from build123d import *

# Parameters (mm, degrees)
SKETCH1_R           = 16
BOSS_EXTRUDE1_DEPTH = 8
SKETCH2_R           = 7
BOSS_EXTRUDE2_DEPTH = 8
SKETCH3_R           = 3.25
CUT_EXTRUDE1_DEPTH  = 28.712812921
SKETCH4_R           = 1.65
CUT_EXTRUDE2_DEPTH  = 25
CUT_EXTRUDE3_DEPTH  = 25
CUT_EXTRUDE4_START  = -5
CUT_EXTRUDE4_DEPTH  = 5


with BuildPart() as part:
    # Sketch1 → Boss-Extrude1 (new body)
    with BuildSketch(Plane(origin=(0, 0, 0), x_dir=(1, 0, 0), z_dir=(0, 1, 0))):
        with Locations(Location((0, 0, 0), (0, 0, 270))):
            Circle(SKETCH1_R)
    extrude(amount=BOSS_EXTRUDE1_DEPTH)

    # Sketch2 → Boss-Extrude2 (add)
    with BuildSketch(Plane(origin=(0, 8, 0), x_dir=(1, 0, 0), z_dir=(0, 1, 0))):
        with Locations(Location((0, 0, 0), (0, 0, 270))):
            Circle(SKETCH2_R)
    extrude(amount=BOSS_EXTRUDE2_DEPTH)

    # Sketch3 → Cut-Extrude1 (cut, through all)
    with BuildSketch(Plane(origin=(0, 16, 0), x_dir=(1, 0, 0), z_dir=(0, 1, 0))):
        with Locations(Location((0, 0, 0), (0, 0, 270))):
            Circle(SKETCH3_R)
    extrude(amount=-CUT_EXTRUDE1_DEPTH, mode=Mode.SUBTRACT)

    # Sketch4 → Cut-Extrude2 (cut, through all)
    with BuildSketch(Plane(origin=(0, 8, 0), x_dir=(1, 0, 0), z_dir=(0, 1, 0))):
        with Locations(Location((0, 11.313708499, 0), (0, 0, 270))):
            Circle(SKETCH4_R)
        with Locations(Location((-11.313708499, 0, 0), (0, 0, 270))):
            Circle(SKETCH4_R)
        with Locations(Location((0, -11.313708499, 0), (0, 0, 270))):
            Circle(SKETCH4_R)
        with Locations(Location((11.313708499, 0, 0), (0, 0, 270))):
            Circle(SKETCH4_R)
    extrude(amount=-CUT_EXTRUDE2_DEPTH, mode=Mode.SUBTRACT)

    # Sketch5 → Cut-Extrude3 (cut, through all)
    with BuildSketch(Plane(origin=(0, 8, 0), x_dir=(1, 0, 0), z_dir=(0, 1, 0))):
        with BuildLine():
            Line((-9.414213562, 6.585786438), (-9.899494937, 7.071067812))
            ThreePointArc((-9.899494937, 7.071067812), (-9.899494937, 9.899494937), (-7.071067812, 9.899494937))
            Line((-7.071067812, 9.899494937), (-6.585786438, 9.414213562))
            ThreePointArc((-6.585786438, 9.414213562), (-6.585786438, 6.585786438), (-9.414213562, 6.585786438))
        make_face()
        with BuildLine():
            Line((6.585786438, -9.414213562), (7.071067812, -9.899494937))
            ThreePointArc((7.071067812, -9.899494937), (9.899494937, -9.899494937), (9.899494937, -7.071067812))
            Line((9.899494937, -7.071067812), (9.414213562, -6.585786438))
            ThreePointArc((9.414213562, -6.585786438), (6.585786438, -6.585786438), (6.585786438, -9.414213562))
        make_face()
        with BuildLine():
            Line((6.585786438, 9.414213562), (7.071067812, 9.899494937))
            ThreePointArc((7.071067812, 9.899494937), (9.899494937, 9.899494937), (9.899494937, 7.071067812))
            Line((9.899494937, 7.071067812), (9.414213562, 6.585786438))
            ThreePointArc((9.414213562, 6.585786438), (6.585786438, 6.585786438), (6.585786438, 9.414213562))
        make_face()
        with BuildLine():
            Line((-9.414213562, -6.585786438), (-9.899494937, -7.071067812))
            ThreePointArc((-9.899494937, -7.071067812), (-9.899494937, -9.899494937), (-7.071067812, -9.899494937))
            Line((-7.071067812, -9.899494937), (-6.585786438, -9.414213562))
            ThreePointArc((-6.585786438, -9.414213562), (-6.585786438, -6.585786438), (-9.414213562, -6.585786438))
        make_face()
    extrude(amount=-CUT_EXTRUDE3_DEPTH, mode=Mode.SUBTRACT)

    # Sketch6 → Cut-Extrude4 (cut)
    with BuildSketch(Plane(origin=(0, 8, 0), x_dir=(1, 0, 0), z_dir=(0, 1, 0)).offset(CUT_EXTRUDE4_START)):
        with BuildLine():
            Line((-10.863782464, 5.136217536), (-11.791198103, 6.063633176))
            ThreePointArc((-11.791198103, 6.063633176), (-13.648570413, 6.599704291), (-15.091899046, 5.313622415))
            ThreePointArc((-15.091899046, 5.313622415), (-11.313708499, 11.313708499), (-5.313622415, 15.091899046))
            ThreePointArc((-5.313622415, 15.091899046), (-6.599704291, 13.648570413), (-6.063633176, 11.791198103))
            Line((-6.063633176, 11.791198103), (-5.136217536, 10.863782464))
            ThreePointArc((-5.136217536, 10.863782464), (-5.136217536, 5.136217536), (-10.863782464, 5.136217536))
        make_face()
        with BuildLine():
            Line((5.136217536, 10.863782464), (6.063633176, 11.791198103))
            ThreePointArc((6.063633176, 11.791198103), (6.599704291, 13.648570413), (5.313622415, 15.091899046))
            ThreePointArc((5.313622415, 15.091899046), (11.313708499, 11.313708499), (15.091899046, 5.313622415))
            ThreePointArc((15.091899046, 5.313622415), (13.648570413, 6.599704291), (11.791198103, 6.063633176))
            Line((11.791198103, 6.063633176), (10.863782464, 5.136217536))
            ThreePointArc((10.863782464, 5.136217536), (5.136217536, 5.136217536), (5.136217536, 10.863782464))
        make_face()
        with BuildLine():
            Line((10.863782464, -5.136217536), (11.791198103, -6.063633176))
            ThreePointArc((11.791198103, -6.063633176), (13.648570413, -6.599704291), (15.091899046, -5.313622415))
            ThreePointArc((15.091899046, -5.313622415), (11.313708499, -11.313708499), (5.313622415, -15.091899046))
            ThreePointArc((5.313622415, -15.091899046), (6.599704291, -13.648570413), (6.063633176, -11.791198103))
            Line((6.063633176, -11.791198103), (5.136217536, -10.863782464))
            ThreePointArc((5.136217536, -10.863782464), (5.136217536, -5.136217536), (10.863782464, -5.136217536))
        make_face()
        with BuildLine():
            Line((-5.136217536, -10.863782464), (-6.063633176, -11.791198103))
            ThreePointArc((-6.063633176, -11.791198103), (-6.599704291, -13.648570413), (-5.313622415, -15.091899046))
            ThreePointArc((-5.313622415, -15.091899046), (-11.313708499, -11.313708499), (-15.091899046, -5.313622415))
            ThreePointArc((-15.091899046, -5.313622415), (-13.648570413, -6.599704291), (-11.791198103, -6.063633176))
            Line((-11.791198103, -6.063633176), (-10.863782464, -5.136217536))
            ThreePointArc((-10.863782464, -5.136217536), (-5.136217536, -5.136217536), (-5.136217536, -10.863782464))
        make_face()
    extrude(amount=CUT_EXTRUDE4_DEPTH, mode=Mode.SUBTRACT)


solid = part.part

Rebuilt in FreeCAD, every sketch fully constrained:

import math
import FreeCAD as App
import Part
import Sketcher
Q = App.Units.Quantity

doc = App.newDocument("Part")
body = doc.addObject("PartDesign::Body", "Body")

# Sketch on XZ plane
sketch1 = doc.addObject("Sketcher::SketchObject", "Sketch")
body.addObject(sketch1)
sketch1.AttachmentSupport = (doc.XZ_Plane, [""])
sketch1.MapMode = "FlatFace"
sketch1.addGeometry(Part.Circle(App.Vector(0, 0, 0), App.Vector(0, 0, 1), 16), False)
sketch1.addConstraint([
    Sketcher.Constraint("Coincident", 0, 3, -1, 1),
    Sketcher.Constraint("Diameter", 0, Q("32 mm")),
])
pad1 = doc.addObject("PartDesign::Pad", "Pad")
body.addObject(pad1)
pad1.Profile = sketch1
pad1.Length = 8
pad1.Reversed = True

# Sketch on XZ plane
sketch2 = doc.addObject("Sketcher::SketchObject", "Sketch001")
body.addObject(sketch2)
sketch2.AttachmentSupport = (doc.XZ_Plane, [""])
sketch2.MapMode = "FlatFace"
sketch2.AttachmentOffset = App.Placement(App.Vector(0, 0, -8), App.Rotation())
sketch2.addGeometry(Part.Circle(App.Vector(0, 0, 0), App.Vector(0, 0, 1), 7), False)
sketch2.addConstraint([
    Sketcher.Constraint("Coincident", 0, 3, -1, 1),
    Sketcher.Constraint("Diameter", 0, Q("14 mm")),
])
pad2 = doc.addObject("PartDesign::Pad", "Pad001")
body.addObject(pad2)
pad2.Profile = sketch2
pad2.Length = 8
pad2.Reversed = True

# Sketch on XZ plane
sketch3 = doc.addObject("Sketcher::SketchObject", "Sketch002")
body.addObject(sketch3)
sketch3.AttachmentSupport = (doc.XZ_Plane, [""])
sketch3.MapMode = "FlatFace"
sketch3.AttachmentOffset = App.Placement(App.Vector(0, 0, -16), App.Rotation())
sketch3.addGeometry(Part.Circle(App.Vector(0, 0, 0), App.Vector(0, 0, 1), 3.2), False)
sketch3.addConstraint([
    Sketcher.Constraint("Coincident", 0, 3, -1, 1),
    Sketcher.Constraint("Diameter", 0, Q("6.5 mm")),
])
pocket1 = doc.addObject("PartDesign::Pocket", "Pocket")
body.addObject(pocket1)
pocket1.Profile = sketch3
pocket1.Type = "ThroughAll"
pocket1.Reversed = True

# Sketch on XZ plane
sketch4 = doc.addObject("Sketcher::SketchObject", "Sketch003")
body.addObject(sketch4)
sketch4.AttachmentSupport = (doc.XZ_Plane, [""])
sketch4.MapMode = "FlatFace"
sketch4.AttachmentOffset = App.Placement(App.Vector(0, 0, -8), App.Rotation())
sketch4.addGeometry([
    Part.Circle(App.Vector(0, -11.3, 0), App.Vector(0, 0, 1), 1.6),
    Part.Circle(App.Vector(-11.3, 0, 0), App.Vector(0, 0, 1), 1.6),
    Part.Circle(App.Vector(0, 11.3, 0), App.Vector(0, 0, 1), 1.6),
    Part.Circle(App.Vector(11.3, 0, 0), App.Vector(0, 0, 1), 1.6),
], False)
sketch4.addConstraint([
    Sketcher.Constraint("Equal", 0, 1),
    Sketcher.Constraint("Equal", 1, 2),
    Sketcher.Constraint("Equal", 2, 3),
    Sketcher.Constraint("Symmetric", 0, 3, 2, 3, -1, 1),
    Sketcher.Constraint("Symmetric", 1, 3, 3, 3, -1, 1),
    Sketcher.Constraint("PointOnObject", 0, 3, -2),
    Sketcher.Constraint("PointOnObject", 1, 3, -1),
    Sketcher.Constraint("Diameter", 0, Q("3.3 mm")),
    Sketcher.Constraint("DistanceY", 0, 3, -1, 1, Q("11.313708 mm")),
    Sketcher.Constraint("DistanceX", 1, 3, -1, 1, Q("11.313708 mm")),
])
pocket2 = doc.addObject("PartDesign::Pocket", "Pocket001")
body.addObject(pocket2)
pocket2.Profile = sketch4
pocket2.Type = "ThroughAll"
pocket2.Reversed = True

# Sketch on XZ plane
sketch5 = doc.addObject("Sketcher::SketchObject", "Sketch004")
body.addObject(sketch5)
sketch5.AttachmentSupport = (doc.XZ_Plane, [""])
sketch5.MapMode = "FlatFace"
sketch5.AttachmentOffset = App.Placement(App.Vector(0, 0, -8), App.Rotation())
sketch5.addGeometry([
    Part.LineSegment(App.Vector(-9.9, -7.1, 0), App.Vector(-9.4, -6.6, 0)),  # 0
    Part.ArcOfCircle(Part.Circle(App.Vector(-8, -8, 0), App.Vector(0, 0, 1), 2), math.radians(-45), math.radians(135)),  # 1
    Part.LineSegment(App.Vector(-6.6, -9.4, 0), App.Vector(-7.1, -9.9, 0)),  # 2
    Part.ArcOfCircle(Part.Circle(App.Vector(-8.5, -8.5, 0), App.Vector(0, 0, 1), 2), math.radians(135), math.radians(315)),  # 3
    Part.LineSegment(App.Vector(6.6, 9.4, 0), App.Vector(7.1, 9.9, 0)),  # 4
    Part.ArcOfCircle(Part.Circle(App.Vector(8.5, 8.5, 0), App.Vector(0, 0, 1), 2), math.radians(-45), math.radians(135)),  # 5
    Part.LineSegment(App.Vector(9.9, 7.1, 0), App.Vector(9.4, 6.6, 0)),  # 6
    Part.ArcOfCircle(Part.Circle(App.Vector(8, 8, 0), App.Vector(0, 0, 1), 2), math.radians(135), math.radians(315)),  # 7
    Part.LineSegment(App.Vector(7.1, -9.9, 0), App.Vector(6.6, -9.4, 0)),  # 8
    Part.ArcOfCircle(Part.Circle(App.Vector(8, -8, 0), App.Vector(0, 0, 1), 2), math.radians(45), math.radians(225)),  # 9
    Part.LineSegment(App.Vector(9.4, -6.6, 0), App.Vector(9.9, -7.1, 0)),  # 10
    Part.ArcOfCircle(Part.Circle(App.Vector(8.5, -8.5, 0), App.Vector(0, 0, 1), 2), math.radians(-135), math.radians(45)),  # 11
    Part.LineSegment(App.Vector(-9.4, 6.6, 0), App.Vector(-9.9, 7.1, 0)),  # 12
    Part.ArcOfCircle(Part.Circle(App.Vector(-8.5, 8.5, 0), App.Vector(0, 0, 1), 2), math.radians(45), math.radians(225)),  # 13
    Part.LineSegment(App.Vector(-7.1, 9.9, 0), App.Vector(-6.6, 9.4, 0)),  # 14
    Part.ArcOfCircle(Part.Circle(App.Vector(-8, 8, 0), App.Vector(0, 0, 1), 2), math.radians(-135), math.radians(45)),  # 15
], False)
sketch5.addConstraint([
    Sketcher.Constraint("Tangent", 0, 2, 1, 2),
    Sketcher.Constraint("Tangent", 1, 1, 2, 1),
    Sketcher.Constraint("Tangent", 2, 2, 3, 2),
    Sketcher.Constraint("Tangent", 3, 1, 0, 1),
    Sketcher.Constraint("Tangent", 4, 2, 5, 2),
    Sketcher.Constraint("Tangent", 5, 1, 6, 1),
    Sketcher.Constraint("Tangent", 6, 2, 7, 2),
    Sketcher.Constraint("Tangent", 7, 1, 4, 1),
    Sketcher.Constraint("Tangent", 8, 2, 9, 2),
    Sketcher.Constraint("Tangent", 9, 1, 10, 1),
    Sketcher.Constraint("Tangent", 10, 2, 11, 2),
    Sketcher.Constraint("Tangent", 11, 1, 8, 1),
    Sketcher.Constraint("Tangent", 12, 2, 13, 2),
    Sketcher.Constraint("Tangent", 13, 1, 14, 1),
    Sketcher.Constraint("Tangent", 14, 2, 15, 2),
    Sketcher.Constraint("Tangent", 15, 1, 12, 1),
    Sketcher.Constraint("Equal", 1, 3),
    Sketcher.Constraint("Equal", 3, 5),
    Sketcher.Constraint("Equal", 5, 7),
    Sketcher.Constraint("Equal", 7, 9),
    Sketcher.Constraint("Equal", 9, 11),
    Sketcher.Constraint("Equal", 11, 13),
    Sketcher.Constraint("Equal", 13, 15),
    Sketcher.Constraint("Symmetric", 3, 3, 5, 3, -1, 1),
    Sketcher.Constraint("Symmetric", 1, 3, 7, 3, -1, 1),
    Sketcher.Constraint("Symmetric", 11, 3, 13, 3, -1, 1),
    Sketcher.Constraint("Symmetric", 9, 3, 15, 3, -1, 1),
    Sketcher.Constraint("Symmetric", 1, 3, 9, 3, -2),
    Sketcher.Constraint("Symmetric", 3, 3, 11, 3, -2),
    Sketcher.Constraint("Perpendicular", 6, 8),
    Sketcher.Constraint("Radius", 1, Q("2 mm")),
    Sketcher.Constraint("DistanceX", 1, 3, -1, 1, Q("8 mm")),
    Sketcher.Constraint("DistanceY", 1, 3, -1, 1, Q("8 mm")),
    Sketcher.Constraint("Distance", 0, Q("0.686292 mm")),
])
pocket3 = doc.addObject("PartDesign::Pocket", "Pocket002")
body.addObject(pocket3)
pocket3.Profile = sketch5
pocket3.Type = "ThroughAll"
pocket3.Reversed = True

# Sketch on XZ plane
sketch6 = doc.addObject("Sketcher::SketchObject", "Sketch005")
body.addObject(sketch6)
sketch6.AttachmentSupport = (doc.XZ_Plane, [""])
sketch6.MapMode = "FlatFace"
sketch6.AttachmentOffset = App.Placement(App.Vector(0, 0, -3), App.Rotation())
sketch6.addGeometry([
    Part.LineSegment(App.Vector(-11.8, -6.1, 0), App.Vector(-10.9, -5.1, 0)),  # 0
    Part.ArcOfCircle(Part.Circle(App.Vector(-8, -8, 0), App.Vector(0, 0, 1), 4), math.radians(-45), math.radians(135)),  # 1
    Part.LineSegment(App.Vector(-5.1, -10.9, 0), App.Vector(-6.1, -11.8, 0)),  # 2
    Part.ArcOfCircle(Part.Circle(App.Vector(-4.6, -13.2, 0), App.Vector(0, 0, 1), 2), math.radians(135), math.radians(251)),  # 3
    Part.ArcOfCircle(Part.Circle(App.Vector(0, 0, 0), App.Vector(0, 0, 1), 16), math.radians(-161), math.radians(-109)),  # 4
    Part.ArcOfCircle(Part.Circle(App.Vector(-13.2, -4.6, 0), App.Vector(0, 0, 1), 2), math.radians(-161), math.radians(-45)),  # 5
    Part.LineSegment(App.Vector(6.1, -11.8, 0), App.Vector(5.1, -10.9, 0)),  # 6
    Part.ArcOfCircle(Part.Circle(App.Vector(8, -8, 0), App.Vector(0, 0, 1), 4), math.radians(45), math.radians(225)),  # 7
    Part.LineSegment(App.Vector(10.9, -5.1, 0), App.Vector(11.8, -6.1, 0)),  # 8
    Part.ArcOfCircle(Part.Circle(App.Vector(13.2, -4.6, 0), App.Vector(0, 0, 1), 2), math.radians(-135), math.radians(-19)),  # 9
    Part.ArcOfCircle(Part.Circle(App.Vector(0, 0, 0), App.Vector(0, 0, 1), 16), math.radians(-71), math.radians(-19)),  # 10
    Part.ArcOfCircle(Part.Circle(App.Vector(4.6, -13.2, 0), App.Vector(0, 0, 1), 2), math.radians(-71), math.radians(45)),  # 11
    Part.LineSegment(App.Vector(11.8, 6.1, 0), App.Vector(10.9, 5.1, 0)),  # 12
    Part.ArcOfCircle(Part.Circle(App.Vector(8, 8, 0), App.Vector(0, 0, 1), 4), math.radians(135), math.radians(315)),  # 13
    Part.LineSegment(App.Vector(5.1, 10.9, 0), App.Vector(6.1, 11.8, 0)),  # 14
    Part.ArcOfCircle(Part.Circle(App.Vector(4.6, 13.2, 0), App.Vector(0, 0, 1), 2), math.radians(-45), math.radians(71)),  # 15
    Part.ArcOfCircle(Part.Circle(App.Vector(0, 0, 0), App.Vector(0, 0, 1), 16), math.radians(19), math.radians(71)),  # 16
    Part.ArcOfCircle(Part.Circle(App.Vector(13.2, 4.6, 0), App.Vector(0, 0, 1), 2), math.radians(19), math.radians(135)),  # 17
    Part.LineSegment(App.Vector(-6.1, 11.8, 0), App.Vector(-5.1, 10.9, 0)),  # 18
    Part.ArcOfCircle(Part.Circle(App.Vector(-8, 8, 0), App.Vector(0, 0, 1), 4), math.radians(-135), math.radians(45)),  # 19
    Part.LineSegment(App.Vector(-10.9, 5.1, 0), App.Vector(-11.8, 6.1, 0)),  # 20
    Part.ArcOfCircle(Part.Circle(App.Vector(-13.2, 4.6, 0), App.Vector(0, 0, 1), 2), math.radians(45), math.radians(161)),  # 21
    Part.ArcOfCircle(Part.Circle(App.Vector(0, 0, 0), App.Vector(0, 0, 1), 16), math.radians(109), math.radians(161)),  # 22
    Part.ArcOfCircle(Part.Circle(App.Vector(-4.6, 13.2, 0), App.Vector(0, 0, 1), 2), math.radians(109), math.radians(225)),  # 23
], False)
sketch6.addConstraint([
    Sketcher.Constraint("Tangent", 0, 2, 1, 2),
    Sketcher.Constraint("Tangent", 1, 1, 2, 1),
    Sketcher.Constraint("Tangent", 2, 2, 3, 1),
    Sketcher.Constraint("Tangent", 3, 2, 4, 2),
    Sketcher.Constraint("Tangent", 4, 1, 5, 1),
    Sketcher.Constraint("Tangent", 5, 2, 0, 1),
    Sketcher.Constraint("Tangent", 6, 2, 7, 2),
    Sketcher.Constraint("Tangent", 7, 1, 8, 1),
    Sketcher.Constraint("Tangent", 8, 2, 9, 1),
    Sketcher.Constraint("Tangent", 9, 2, 10, 2),
    Sketcher.Constraint("Tangent", 10, 1, 11, 1),
    Sketcher.Constraint("Tangent", 11, 2, 6, 1),
    Sketcher.Constraint("Tangent", 12, 2, 13, 2),
    Sketcher.Constraint("Tangent", 13, 1, 14, 1),
    Sketcher.Constraint("Tangent", 14, 2, 15, 1),
    Sketcher.Constraint("Tangent", 15, 2, 16, 2),
    Sketcher.Constraint("Tangent", 16, 1, 17, 1),
    Sketcher.Constraint("Tangent", 17, 2, 12, 1),
    Sketcher.Constraint("Tangent", 18, 2, 19, 2),
    Sketcher.Constraint("Tangent", 19, 1, 20, 1),
    Sketcher.Constraint("Tangent", 20, 2, 21, 1),
    Sketcher.Constraint("Tangent", 21, 2, 22, 2),
    Sketcher.Constraint("Tangent", 22, 1, 23, 1),
    Sketcher.Constraint("Tangent", 23, 2, 18, 1),
    Sketcher.Constraint("Coincident", 4, 3, -1, 1),
    Sketcher.Constraint("Coincident", 10, 3, -1, 1),
    Sketcher.Constraint("Coincident", 16, 3, -1, 1),
    Sketcher.Constraint("Coincident", 22, 3, -1, 1),
    Sketcher.Constraint("Equal", 3, 5),
    Sketcher.Constraint("Equal", 1, 7),
    Sketcher.Constraint("Equal", 5, 9),
    Sketcher.Constraint("Equal", 4, 10),
    Sketcher.Constraint("Equal", 9, 11),
    Sketcher.Constraint("Equal", 7, 13),
    Sketcher.Constraint("Equal", 11, 15),
    Sketcher.Constraint("Equal", 10, 16),
    Sketcher.Constraint("Equal", 15, 17),
    Sketcher.Constraint("Equal", 13, 19),
    Sketcher.Constraint("Equal", 17, 21),
    Sketcher.Constraint("Equal", 16, 22),
    Sketcher.Constraint("Equal", 21, 23),
    Sketcher.Constraint("Symmetric", 1, 3, 13, 3, -1, 1),
    Sketcher.Constraint("Symmetric", 7, 3, 19, 3, -1, 1),
    Sketcher.Constraint("Symmetric", 1, 3, 7, 3, -2),
    Sketcher.Constraint("Parallel", 0, 2),
    Sketcher.Constraint("Perpendicular", 2, 6),
    Sketcher.Constraint("Parallel", 6, 8),
    Sketcher.Constraint("Perpendicular", 8, 12),
    Sketcher.Constraint("Parallel", 12, 14),
    Sketcher.Constraint("Perpendicular", 14, 18),
    Sketcher.Constraint("Parallel", 18, 20),
    Sketcher.Constraint("Horizontal", 5, 3, 9, 3),
    Sketcher.Constraint("Equal", 0, 2),
    Sketcher.Constraint("Radius", 3, Q("2 mm")),
    Sketcher.Constraint("Radius", 4, Q("16 mm")),
    Sketcher.Constraint("Radius", 1, Q("4.05 mm")),
    Sketcher.Constraint("DistanceX", 1, 3, -1, 1, Q("8 mm")),
])
pocket4 = doc.addObject("PartDesign::Pocket", "Pocket003")
body.addObject(pocket4)
pocket4.Profile = sketch6
pocket4.Length = 5

doc.recompute()
